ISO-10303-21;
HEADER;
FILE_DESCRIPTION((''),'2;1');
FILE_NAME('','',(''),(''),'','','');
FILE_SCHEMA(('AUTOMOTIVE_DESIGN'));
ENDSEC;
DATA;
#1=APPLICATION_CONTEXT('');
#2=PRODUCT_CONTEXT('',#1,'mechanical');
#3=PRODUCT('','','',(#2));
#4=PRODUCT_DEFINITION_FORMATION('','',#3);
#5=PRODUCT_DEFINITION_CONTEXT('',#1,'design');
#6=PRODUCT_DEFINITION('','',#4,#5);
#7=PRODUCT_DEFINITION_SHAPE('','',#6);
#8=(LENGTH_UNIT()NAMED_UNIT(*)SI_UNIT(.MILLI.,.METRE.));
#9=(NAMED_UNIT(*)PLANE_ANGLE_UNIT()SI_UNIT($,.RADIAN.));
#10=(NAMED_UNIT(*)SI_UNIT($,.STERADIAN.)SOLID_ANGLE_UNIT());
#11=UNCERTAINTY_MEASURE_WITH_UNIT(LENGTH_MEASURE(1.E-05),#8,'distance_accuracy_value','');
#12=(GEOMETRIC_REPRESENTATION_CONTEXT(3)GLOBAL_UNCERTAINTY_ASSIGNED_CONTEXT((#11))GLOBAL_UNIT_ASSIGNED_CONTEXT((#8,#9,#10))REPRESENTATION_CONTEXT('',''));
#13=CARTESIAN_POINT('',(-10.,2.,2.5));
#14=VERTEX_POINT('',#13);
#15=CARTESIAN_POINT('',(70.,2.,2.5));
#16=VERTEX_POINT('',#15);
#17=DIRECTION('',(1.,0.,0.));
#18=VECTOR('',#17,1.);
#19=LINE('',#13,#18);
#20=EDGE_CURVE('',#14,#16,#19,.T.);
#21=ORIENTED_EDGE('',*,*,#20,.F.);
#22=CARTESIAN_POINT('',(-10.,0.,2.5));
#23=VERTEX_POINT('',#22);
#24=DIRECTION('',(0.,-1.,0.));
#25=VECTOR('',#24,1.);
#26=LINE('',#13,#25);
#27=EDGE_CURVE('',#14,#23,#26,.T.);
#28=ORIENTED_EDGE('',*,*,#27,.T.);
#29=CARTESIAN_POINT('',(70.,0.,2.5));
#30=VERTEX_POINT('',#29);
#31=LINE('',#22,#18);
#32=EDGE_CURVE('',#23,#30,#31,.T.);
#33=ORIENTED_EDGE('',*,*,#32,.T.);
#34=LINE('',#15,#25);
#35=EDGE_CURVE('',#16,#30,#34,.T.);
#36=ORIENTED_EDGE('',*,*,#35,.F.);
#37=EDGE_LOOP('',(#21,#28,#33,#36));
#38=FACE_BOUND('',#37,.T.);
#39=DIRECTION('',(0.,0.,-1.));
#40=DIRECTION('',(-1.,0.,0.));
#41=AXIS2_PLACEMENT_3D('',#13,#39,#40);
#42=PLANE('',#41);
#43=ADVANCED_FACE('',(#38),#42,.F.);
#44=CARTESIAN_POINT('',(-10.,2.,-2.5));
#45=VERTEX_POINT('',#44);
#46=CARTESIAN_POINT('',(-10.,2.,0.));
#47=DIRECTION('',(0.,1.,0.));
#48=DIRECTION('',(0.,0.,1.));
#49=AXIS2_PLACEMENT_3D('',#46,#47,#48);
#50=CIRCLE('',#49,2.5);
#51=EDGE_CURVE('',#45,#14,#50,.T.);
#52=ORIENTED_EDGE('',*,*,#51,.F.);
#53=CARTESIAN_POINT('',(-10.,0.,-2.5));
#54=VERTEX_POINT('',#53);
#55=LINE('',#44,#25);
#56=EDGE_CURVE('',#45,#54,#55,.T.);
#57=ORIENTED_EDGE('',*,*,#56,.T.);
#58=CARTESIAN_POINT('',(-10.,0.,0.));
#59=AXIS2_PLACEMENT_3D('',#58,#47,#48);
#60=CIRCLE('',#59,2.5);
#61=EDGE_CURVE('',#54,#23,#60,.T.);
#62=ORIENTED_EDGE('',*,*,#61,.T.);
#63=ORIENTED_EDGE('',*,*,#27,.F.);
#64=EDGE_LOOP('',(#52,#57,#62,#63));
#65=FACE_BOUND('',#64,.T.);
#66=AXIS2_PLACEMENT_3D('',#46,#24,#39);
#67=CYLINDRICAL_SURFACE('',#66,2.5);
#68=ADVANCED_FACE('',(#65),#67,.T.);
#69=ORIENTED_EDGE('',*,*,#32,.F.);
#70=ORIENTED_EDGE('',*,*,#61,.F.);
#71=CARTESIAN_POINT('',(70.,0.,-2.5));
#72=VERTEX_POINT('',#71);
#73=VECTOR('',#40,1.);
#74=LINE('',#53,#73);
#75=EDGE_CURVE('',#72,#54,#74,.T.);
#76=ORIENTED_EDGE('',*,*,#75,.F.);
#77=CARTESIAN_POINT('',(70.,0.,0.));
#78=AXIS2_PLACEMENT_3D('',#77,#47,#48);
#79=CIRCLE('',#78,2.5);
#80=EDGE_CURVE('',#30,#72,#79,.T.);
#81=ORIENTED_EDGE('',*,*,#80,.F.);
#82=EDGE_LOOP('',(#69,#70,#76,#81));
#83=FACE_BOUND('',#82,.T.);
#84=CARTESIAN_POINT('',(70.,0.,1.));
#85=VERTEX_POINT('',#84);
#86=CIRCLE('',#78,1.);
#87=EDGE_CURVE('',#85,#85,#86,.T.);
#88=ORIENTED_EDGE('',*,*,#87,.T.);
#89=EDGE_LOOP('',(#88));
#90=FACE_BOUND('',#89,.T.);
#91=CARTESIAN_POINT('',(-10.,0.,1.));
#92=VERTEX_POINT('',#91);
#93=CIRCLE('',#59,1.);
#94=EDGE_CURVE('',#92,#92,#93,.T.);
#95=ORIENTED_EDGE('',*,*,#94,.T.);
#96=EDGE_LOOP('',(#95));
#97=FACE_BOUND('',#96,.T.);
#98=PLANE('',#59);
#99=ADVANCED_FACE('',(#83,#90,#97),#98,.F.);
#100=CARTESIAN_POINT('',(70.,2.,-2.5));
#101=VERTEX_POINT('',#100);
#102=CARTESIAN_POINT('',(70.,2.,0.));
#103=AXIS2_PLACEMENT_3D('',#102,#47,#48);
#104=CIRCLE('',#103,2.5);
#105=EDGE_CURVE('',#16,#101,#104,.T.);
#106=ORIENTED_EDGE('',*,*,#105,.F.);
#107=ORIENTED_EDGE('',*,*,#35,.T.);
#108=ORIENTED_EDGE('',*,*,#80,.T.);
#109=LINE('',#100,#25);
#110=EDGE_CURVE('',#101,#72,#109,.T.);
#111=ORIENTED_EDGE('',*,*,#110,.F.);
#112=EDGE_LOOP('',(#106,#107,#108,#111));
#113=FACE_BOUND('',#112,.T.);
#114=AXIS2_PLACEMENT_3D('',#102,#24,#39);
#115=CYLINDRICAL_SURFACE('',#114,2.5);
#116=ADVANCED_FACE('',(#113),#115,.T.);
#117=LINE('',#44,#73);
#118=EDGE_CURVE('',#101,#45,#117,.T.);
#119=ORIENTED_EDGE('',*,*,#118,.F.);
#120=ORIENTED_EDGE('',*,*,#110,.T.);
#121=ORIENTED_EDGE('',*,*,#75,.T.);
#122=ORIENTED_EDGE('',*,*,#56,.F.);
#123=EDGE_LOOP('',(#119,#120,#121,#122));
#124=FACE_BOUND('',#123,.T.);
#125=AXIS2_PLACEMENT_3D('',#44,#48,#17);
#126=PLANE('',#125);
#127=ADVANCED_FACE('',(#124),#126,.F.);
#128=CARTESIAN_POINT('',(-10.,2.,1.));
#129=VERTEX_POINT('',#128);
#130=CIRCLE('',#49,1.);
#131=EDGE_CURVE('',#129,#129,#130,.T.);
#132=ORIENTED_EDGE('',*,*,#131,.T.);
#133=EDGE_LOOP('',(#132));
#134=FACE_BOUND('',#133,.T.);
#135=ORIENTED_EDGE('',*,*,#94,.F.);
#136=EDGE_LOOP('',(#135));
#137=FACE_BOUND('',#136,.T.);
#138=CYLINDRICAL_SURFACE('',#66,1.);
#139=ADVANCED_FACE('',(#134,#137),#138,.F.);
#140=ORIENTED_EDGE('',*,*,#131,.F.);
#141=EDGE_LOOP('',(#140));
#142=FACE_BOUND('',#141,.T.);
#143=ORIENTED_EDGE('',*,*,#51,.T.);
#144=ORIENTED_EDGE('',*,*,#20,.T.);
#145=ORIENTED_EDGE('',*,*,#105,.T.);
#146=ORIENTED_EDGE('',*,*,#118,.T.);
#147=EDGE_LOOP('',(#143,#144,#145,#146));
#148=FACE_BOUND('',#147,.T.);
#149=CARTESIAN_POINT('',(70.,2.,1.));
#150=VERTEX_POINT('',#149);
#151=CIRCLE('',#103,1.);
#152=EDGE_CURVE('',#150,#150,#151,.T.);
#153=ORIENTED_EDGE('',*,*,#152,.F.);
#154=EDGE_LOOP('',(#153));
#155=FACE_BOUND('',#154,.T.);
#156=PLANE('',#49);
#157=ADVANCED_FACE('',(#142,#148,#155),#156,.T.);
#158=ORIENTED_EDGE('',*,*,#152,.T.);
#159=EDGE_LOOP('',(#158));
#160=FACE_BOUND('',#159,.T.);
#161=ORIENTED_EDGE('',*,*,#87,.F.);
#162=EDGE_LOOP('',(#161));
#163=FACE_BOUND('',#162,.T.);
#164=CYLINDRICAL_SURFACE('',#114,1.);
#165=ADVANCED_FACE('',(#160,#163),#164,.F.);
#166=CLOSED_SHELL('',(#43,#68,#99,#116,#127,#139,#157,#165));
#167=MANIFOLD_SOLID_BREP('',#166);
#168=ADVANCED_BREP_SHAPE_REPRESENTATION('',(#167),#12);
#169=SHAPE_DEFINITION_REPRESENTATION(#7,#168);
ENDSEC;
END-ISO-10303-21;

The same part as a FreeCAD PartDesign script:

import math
import FreeCAD as App
import Part
import Sketcher
Q = App.Units.Quantity

doc = App.newDocument("Part")
body = doc.addObject("PartDesign::Body", "Body")

# Sketch on XZ plane
sketch1 = body.newObject("Sketcher::SketchObject", "Sketch")
sketch1.AttachmentSupport = (doc.getObject("XZ_Plane"), [""])
sketch1.MapMode = "FlatFace"
sketch1.addGeometry([
    Part.LineSegment(App.Vector(70, -2.5, 0), App.Vector(-10, -2.5, 0)),  # 0
    Part.ArcOfCircle(Part.Circle(App.Vector(-10, 0, 0), App.Vector(0, 0, 1), 2.5), math.radians(90), math.radians(270)),  # 1
    Part.LineSegment(App.Vector(-10, 2.5, 0), App.Vector(70, 2.5, 0)),  # 2
    Part.ArcOfCircle(Part.Circle(App.Vector(70, 0, 0), App.Vector(0, 0, 1), 2.5), math.radians(-90), math.radians(90)),  # 3
    Part.Circle(App.Vector(70, 0, 0), App.Vector(0, 0, 1), 1),  # 4
    Part.Circle(App.Vector(-10, 0, 0), App.Vector(0, 0, 1), 1),  # 5
], False)
sketch1.addConstraint([
    Sketcher.Constraint("Tangent", 0, 2, 1, 2),
    Sketcher.Constraint("Tangent", 1, 1, 2, 1),
    Sketcher.Constraint("Tangent", 2, 2, 3, 2),
    Sketcher.Constraint("Tangent", 3, 1, 0, 1),
    Sketcher.Constraint("Horizontal", 0),
    Sketcher.Constraint("Horizontal", 2),
    Sketcher.Constraint("Coincident", 4, 3, 3, 3),
    Sketcher.Constraint("Coincident", 5, 3, 1, 3),
    Sketcher.Constraint("Equal", 4, 5),
    Sketcher.Constraint("PointOnObject", 1, 3, -1),
    Sketcher.Constraint("Diameter", 4, Q("2 mm")),
    Sketcher.Constraint("Radius", 1, Q("2.5 mm")),
    Sketcher.Constraint("DistanceX", 0, 2, 0, 1, Q("80 mm")),
    Sketcher.Constraint("DistanceX", 1, 3, -1, 1, Q("10 mm")),
])
pad1 = body.newObject("PartDesign::Pad", "Pad")
pad1.Profile = sketch1
pad1.Length = 2
pad1.Reversed = True

doc.recompute()
